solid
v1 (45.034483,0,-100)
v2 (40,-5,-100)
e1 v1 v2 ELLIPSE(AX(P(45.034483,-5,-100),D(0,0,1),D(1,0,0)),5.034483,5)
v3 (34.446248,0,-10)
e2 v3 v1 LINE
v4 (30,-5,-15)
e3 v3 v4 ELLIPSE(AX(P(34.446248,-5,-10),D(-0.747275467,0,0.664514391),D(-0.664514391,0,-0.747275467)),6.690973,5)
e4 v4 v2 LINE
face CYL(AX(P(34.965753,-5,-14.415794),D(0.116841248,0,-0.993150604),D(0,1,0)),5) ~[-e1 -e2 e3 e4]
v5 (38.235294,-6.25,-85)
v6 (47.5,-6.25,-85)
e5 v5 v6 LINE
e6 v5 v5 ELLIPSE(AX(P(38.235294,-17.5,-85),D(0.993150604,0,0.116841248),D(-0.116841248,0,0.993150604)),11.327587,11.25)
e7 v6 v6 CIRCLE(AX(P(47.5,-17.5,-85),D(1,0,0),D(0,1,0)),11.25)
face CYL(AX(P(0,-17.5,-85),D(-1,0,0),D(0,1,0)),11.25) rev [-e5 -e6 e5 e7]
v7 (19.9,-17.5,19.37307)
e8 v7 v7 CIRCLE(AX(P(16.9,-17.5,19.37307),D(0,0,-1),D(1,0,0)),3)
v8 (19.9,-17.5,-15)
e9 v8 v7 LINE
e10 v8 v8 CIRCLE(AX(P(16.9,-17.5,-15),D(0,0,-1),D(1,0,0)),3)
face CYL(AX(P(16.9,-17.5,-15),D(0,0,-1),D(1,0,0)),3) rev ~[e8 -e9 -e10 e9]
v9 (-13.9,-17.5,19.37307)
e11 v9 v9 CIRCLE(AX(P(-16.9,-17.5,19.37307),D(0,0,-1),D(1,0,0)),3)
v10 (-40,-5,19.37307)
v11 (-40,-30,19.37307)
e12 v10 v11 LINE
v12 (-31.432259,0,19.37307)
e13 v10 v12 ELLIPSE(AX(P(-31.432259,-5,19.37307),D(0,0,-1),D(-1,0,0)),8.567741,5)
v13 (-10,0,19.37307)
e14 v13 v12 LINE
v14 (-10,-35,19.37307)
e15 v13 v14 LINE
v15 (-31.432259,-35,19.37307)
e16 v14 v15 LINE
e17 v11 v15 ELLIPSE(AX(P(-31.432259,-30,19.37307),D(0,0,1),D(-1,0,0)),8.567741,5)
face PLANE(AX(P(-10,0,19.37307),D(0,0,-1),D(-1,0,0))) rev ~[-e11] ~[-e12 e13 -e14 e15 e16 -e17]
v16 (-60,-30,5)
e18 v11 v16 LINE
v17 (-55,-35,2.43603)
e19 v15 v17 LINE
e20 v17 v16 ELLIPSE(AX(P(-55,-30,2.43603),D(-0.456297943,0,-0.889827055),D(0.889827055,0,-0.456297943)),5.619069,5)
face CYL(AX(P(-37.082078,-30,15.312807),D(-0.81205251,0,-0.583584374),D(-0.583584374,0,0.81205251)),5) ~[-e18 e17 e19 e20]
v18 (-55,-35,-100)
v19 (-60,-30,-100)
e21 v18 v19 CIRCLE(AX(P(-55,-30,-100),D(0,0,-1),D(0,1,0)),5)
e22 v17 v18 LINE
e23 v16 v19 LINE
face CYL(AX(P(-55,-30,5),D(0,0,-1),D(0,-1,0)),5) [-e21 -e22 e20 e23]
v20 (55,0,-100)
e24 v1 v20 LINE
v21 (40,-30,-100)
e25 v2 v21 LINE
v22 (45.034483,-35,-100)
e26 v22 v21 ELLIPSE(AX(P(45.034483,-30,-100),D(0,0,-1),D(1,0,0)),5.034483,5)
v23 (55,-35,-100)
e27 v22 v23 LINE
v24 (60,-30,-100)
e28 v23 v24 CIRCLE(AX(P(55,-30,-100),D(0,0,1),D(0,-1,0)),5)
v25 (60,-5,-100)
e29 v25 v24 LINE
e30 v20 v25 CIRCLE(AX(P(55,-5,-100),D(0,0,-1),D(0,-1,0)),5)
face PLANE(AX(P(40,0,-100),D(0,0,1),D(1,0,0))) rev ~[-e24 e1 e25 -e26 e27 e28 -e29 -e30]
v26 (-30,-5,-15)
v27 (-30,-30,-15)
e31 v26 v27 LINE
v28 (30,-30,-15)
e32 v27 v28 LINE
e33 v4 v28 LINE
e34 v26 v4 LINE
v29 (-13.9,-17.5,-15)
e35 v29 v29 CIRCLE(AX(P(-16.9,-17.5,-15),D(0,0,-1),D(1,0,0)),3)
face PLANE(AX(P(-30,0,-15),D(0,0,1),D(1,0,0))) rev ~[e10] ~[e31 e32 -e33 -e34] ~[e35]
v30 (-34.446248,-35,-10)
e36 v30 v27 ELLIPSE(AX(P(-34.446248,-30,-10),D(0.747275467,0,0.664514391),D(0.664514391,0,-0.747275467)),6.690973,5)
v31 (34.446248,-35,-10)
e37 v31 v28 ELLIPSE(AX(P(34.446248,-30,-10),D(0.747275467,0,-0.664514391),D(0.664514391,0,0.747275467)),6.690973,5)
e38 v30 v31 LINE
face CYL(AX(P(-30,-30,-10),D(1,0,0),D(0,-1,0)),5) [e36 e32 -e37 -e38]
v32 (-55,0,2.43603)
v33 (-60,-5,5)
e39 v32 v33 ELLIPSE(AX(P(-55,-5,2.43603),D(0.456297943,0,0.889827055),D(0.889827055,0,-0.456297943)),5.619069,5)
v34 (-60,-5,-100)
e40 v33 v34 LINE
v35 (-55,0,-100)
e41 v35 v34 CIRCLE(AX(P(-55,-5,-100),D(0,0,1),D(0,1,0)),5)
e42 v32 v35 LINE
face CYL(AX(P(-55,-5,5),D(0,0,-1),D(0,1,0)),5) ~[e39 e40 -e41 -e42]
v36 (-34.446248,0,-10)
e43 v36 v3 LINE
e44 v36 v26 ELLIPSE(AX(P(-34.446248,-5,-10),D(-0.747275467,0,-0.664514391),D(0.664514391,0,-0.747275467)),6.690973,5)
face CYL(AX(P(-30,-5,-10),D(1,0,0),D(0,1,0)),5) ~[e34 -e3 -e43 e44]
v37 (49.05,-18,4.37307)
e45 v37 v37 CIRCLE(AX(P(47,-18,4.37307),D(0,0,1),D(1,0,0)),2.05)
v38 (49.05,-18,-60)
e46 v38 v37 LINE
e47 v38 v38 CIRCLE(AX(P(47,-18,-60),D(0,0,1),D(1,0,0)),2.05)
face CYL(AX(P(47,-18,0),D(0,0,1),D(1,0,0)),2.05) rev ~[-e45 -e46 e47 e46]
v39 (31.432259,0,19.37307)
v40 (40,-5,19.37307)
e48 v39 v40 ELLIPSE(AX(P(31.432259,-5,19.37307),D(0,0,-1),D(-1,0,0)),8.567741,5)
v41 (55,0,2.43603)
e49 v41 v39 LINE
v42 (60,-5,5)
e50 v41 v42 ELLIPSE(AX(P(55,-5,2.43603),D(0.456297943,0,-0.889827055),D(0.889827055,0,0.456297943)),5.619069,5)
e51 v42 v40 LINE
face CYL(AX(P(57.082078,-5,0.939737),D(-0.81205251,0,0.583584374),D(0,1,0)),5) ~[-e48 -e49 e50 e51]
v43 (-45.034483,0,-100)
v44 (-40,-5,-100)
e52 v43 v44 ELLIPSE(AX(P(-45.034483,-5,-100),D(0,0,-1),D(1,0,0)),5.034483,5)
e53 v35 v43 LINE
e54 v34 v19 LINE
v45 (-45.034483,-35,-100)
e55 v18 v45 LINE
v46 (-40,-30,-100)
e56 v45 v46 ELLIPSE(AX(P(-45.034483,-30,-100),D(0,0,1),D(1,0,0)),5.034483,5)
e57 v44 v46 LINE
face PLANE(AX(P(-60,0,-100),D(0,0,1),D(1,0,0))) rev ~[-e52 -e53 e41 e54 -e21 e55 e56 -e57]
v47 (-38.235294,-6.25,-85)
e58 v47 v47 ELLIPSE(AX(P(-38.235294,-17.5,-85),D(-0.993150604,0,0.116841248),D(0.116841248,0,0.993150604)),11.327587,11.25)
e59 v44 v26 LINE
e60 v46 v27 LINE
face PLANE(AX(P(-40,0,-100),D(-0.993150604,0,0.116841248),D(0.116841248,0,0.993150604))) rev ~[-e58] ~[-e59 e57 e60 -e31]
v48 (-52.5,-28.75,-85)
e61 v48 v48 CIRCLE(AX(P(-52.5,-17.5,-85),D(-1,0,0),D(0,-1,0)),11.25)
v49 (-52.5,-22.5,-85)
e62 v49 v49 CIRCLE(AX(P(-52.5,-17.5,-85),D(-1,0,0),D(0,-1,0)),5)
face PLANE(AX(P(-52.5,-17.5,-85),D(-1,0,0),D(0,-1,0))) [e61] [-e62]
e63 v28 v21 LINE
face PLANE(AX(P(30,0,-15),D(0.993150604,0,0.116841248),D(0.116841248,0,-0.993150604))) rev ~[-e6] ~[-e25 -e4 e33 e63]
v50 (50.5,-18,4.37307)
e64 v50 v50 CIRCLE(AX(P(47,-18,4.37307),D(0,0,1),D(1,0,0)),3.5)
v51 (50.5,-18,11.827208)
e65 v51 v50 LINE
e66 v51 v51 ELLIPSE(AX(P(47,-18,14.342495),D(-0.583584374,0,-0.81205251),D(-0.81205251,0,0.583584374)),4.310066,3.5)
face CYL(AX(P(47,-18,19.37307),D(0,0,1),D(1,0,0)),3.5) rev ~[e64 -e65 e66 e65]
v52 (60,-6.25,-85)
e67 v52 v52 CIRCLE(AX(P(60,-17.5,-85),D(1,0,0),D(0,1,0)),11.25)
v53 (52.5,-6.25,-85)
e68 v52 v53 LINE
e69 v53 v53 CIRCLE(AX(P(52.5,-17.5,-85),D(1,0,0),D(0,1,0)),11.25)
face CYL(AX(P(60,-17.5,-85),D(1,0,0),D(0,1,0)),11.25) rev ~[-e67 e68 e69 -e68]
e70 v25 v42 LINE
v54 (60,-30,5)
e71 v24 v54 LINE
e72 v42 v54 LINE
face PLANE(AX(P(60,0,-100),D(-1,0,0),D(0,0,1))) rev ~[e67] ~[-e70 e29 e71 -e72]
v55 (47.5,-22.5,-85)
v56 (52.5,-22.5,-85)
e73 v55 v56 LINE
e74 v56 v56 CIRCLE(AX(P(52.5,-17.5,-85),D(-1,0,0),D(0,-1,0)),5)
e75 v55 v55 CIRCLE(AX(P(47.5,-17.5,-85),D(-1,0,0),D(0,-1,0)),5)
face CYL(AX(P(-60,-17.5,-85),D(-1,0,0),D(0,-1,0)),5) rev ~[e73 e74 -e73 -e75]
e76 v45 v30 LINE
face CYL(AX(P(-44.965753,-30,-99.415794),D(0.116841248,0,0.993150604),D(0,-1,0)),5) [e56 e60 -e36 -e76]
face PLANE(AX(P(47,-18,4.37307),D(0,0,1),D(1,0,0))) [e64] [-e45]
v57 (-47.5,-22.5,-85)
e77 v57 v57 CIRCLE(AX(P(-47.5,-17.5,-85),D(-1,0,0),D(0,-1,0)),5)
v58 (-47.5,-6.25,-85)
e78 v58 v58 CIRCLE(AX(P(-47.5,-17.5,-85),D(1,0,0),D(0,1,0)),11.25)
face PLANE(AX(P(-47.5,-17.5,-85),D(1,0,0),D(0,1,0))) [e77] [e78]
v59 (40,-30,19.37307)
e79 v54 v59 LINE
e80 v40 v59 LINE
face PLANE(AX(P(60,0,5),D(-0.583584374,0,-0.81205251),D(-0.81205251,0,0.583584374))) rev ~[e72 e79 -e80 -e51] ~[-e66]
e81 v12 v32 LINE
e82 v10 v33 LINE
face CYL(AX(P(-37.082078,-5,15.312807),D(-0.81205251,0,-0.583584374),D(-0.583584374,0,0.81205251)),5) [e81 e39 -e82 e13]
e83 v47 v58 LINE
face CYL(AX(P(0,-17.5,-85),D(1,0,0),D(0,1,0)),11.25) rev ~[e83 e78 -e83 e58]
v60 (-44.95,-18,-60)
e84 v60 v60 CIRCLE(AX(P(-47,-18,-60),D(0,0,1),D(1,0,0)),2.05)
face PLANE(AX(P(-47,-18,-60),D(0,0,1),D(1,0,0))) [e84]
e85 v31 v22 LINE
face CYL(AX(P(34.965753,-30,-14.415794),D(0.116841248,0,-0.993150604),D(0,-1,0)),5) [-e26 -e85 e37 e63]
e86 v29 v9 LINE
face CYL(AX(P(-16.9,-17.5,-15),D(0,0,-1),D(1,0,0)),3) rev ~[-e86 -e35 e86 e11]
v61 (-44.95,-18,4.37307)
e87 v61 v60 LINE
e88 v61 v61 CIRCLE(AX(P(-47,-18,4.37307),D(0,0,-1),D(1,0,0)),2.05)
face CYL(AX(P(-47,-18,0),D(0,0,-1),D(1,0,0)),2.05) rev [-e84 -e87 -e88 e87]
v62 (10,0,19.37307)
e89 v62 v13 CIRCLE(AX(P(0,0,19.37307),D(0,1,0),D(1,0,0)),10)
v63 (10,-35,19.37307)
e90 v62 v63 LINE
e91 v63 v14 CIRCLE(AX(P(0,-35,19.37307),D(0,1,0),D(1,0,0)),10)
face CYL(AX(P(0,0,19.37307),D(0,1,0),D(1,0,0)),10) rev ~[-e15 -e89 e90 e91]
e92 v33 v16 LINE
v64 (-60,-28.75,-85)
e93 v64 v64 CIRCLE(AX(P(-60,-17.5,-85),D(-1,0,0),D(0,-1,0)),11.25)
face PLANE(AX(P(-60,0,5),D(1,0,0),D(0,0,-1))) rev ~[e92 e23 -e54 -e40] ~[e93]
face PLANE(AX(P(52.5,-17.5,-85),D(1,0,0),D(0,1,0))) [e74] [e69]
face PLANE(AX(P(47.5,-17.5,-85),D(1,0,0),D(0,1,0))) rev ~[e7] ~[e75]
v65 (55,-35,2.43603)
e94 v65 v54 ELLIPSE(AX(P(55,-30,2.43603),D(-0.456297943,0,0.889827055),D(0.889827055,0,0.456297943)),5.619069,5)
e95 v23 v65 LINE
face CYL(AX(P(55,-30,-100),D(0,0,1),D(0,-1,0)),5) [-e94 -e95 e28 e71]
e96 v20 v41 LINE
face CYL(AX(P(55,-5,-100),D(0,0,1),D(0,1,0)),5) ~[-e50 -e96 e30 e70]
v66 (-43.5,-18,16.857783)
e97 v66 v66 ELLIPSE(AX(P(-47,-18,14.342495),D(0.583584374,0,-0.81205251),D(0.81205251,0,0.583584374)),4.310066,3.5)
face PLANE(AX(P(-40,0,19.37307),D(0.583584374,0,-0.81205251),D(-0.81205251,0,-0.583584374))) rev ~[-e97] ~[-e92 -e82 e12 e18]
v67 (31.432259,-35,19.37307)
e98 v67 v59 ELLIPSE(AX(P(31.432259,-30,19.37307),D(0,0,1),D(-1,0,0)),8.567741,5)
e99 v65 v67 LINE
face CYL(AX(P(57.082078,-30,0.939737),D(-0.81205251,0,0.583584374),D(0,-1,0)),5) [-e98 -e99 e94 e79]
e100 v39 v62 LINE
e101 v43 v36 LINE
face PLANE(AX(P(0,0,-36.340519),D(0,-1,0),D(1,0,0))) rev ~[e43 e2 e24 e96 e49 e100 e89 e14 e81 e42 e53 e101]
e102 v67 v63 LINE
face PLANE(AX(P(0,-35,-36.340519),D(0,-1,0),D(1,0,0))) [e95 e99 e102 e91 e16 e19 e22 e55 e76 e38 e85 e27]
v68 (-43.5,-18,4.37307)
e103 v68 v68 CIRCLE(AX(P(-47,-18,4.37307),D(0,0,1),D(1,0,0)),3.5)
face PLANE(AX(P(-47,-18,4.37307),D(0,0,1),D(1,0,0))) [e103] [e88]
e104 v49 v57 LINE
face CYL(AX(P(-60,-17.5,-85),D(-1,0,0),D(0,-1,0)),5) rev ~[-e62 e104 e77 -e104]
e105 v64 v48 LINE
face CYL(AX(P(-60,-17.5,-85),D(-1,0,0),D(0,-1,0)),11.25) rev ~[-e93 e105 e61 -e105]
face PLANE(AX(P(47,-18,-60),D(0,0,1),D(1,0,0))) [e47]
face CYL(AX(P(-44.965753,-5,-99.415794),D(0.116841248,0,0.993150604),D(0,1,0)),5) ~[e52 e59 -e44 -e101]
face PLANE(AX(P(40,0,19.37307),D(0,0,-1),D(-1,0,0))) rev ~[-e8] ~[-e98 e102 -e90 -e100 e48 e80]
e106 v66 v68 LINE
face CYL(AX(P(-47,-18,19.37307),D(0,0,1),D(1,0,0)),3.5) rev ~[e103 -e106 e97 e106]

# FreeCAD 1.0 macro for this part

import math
import FreeCAD as App
import Part
import Sketcher

V = App.Vector
Q = App.Units.Quantity


def edges_at(feature, points):
    """Names of the edges that pass closest to the given points."""
    edges = feature.Shape.Edges
    near = lambda p: min(range(len(edges)), key=lambda i: edges[i].distToShape(Part.Vertex(*p))[0])
    return sorted({f"Edge{near(p) + 1}" for p in points})

doc = App.newDocument("Part")
body = doc.addObject("PartDesign::Body", "Body")

# Sketch on XZ plane
sketch1 = doc.addObject("Sketcher::SketchObject", "Sketch")
body.addObject(sketch1)
sketch1.AttachmentSupport = (doc.XZ_Plane, [""])
sketch1.MapMode = "FlatFace"
sketch1.addGeometry([
    Part.LineSegment(V(-40, 19, 0), V(-60, 5, 0)),  # 0
    Part.LineSegment(V(-60, 5, 0), V(-60, -100, 0)),  # 1
    Part.LineSegment(V(-60, -100, 0), V(-40, -100, 0)),  # 2
    Part.LineSegment(V(-40, -100, 0), V(-30, -15, 0)),  # 3
    Part.LineSegment(V(-30, -15, 0), V(30, -15, 0)),  # 4
    Part.LineSegment(V(30, -15, 0), V(40, -100, 0)),  # 5
    Part.LineSegment(V(40, -100, 0), V(60, -100, 0)),  # 6
    Part.LineSegment(V(60, -100, 0), V(60, 5, 0)),  # 7
    Part.LineSegment(V(60, 5, 0), V(40, 19, 0)),  # 8
    Part.LineSegment(V(40, 19, 0), V(10, 19, 0)),  # 9
    Part.ArcOfCircle(Part.Circle(V(0, 19, 0), V(0, 0, 1), 10), math.radians(180), math.radians(360)),  # 10
    Part.LineSegment(V(-10, 19, 0), V(-40, 19, 0)),  # 11
], False)
sketch1.addConstraint([
    Sketcher.Constraint("Coincident", 0, 2, 1, 1),
    Sketcher.Constraint("Coincident", 1, 2, 2, 1),
    Sketcher.Constraint("Coincident", 2, 2, 3, 1),
    Sketcher.Constraint("Coincident", 3, 2, 4, 1),
    Sketcher.Constraint("Coincident", 4, 2, 5, 1),
    Sketcher.Constraint("Coincident", 5, 2, 6, 1),
    Sketcher.Constraint("Coincident", 6, 2, 7, 1),
    Sketcher.Constraint("Coincident", 7, 2, 8, 1),
    Sketcher.Constraint("Coincident", 8, 2, 9, 1),
    Sketcher.Constraint("Coincident", 9, 2, 10, 2),
    Sketcher.Constraint("Coincident", 10, 1, 11, 1),
    Sketcher.Constraint("Coincident", 11, 2, 0, 1),
    Sketcher.Constraint("Vertical", 1),
    Sketcher.Constraint("Horizontal", 2),
    Sketcher.Constraint("Horizontal", 4),
    Sketcher.Constraint("Horizontal", 6),
    Sketcher.Constraint("Vertical", 7),
    Sketcher.Constraint("Horizontal", 9),
    Sketcher.Constraint("Horizontal", 11),
    Sketcher.Constraint("Symmetric", 2, 2, 5, 2, -2),
    Sketcher.Constraint("Symmetric", 0, 2, 7, 2, -2),
    Sketcher.Constraint("Symmetric", 9, 2, 10, 1, -2),
    Sketcher.Constraint("Horizontal", 10, 3, 8, 2),
    Sketcher.Constraint("Vertical", 5, 2, 8, 2),
    Sketcher.Constraint("Vertical", 2, 2, 11, 2),
    Sketcher.Constraint("Equal", 3, 5),
    Sketcher.Constraint("Radius", 10, Q("10 mm")),
    Sketcher.Constraint("DistanceX", 2, 1, 2, 2, Q("20 mm")),
    Sketcher.Constraint("DistanceX", 4, 1, 4, 2, Q("60 mm")),
    Sketcher.Constraint("DistanceX", 9, 2, 9, 1, Q("30 mm")),
    Sketcher.Constraint("DistanceY", 1, 2, 1, 1, Q("105 mm")),
    Sketcher.Constraint("DistanceY", -1, 1, 0, 2, Q("5 mm")),
    Sketcher.Constraint("DistanceY", 3, 2, -1, 1, Q("15 mm")),
    Sketcher.Constraint("Distance", 0, Q("24.628949 mm")),
])
pad1 = doc.addObject("PartDesign::Pad", "Pad")
body.addObject(pad1)
pad1.Profile = sketch1
pad1.Length = 35

# Sketch on XY plane
sketch2 = doc.addObject("Sketcher::SketchObject", "Sketch001")
body.addObject(sketch2)
sketch2.AttachmentSupport = (doc.XY_Plane, [""])
sketch2.MapMode = "FlatFace"
sketch2.AttachmentOffset = App.Placement(V(0, 0, -15), App.Rotation())
sketch2.addGeometry([
    Part.Circle(V(-16.9, -17.5, 0), V(0, 0, 1), 3),
    Part.Circle(V(16.9, -17.5, 0), V(0, 0, 1), 3),
], False)
sketch2.addConstraint([
    Sketcher.Constraint("Equal", 0, 1),
    Sketcher.Constraint("Symmetric", 0, 3, 1, 3, -2),
    Sketcher.Constraint("Diameter", 0, Q("6 mm")),
    Sketcher.Constraint("DistanceX", 0, 3, -1, 1, Q("16.9 mm")),
    Sketcher.Constraint("DistanceY", 0, 3, -1, 1, Q("17.5 mm")),
])
pocket1 = doc.addObject("PartDesign::Pocket", "Pocket")
body.addObject(pocket1)
pocket1.Profile = sketch2
pocket1.Type = "ThroughAll"
pocket1.Reversed = True

# Sketch on YZ plane
sketch3 = doc.addObject("Sketcher::SketchObject", "Sketch002")
body.addObject(sketch3)
sketch3.AttachmentSupport = (doc.YZ_Plane, [""])
sketch3.MapMode = "FlatFace"
sketch3.AttachmentOffset = App.Placement(V(0, 0, -60), App.Rotation())
sketch3.addGeometry(Part.Circle(V(-18, -85, 0), V(0, 0, 1), 5), False)
sketch3.addConstraint([
    Sketcher.Constraint("Diameter", 0, Q("10 mm")),
    Sketcher.Constraint("DistanceY", 0, 3, -1, 1, Q("85 mm")),
    Sketcher.Constraint("DistanceX", 0, 3, -1, 1, Q("17.5 mm")),
])
pocket2 = doc.addObject("PartDesign::Pocket", "Pocket001")
body.addObject(pocket2)
pocket2.Profile = sketch3
pocket2.Type = "ThroughAll"
pocket2.Reversed = True

# Sketch on YZ plane
sketch4 = doc.addObject("Sketcher::SketchObject", "Sketch003")
body.addObject(sketch4)
sketch4.AttachmentSupport = (doc.YZ_Plane, [""])
sketch4.MapMode = "FlatFace"
sketch4.AttachmentOffset = App.Placement(V(0, 0, -60), App.Rotation())
sketch4.addGeometry(Part.Circle(V(-18, -85, 0), V(0, 0, 1), 11), False)
sketch4.addConstraint([
    Sketcher.Constraint("Diameter", 0, Q("22.5 mm")),
    Sketcher.Constraint("DistanceY", 0, 3, -1, 1, Q("85 mm")),
    Sketcher.Constraint("DistanceX", 0, 3, -1, 1, Q("17.5 mm")),
])
pocket3 = doc.addObject("PartDesign::Pocket", "Pocket002")
body.addObject(pocket3)
pocket3.Profile = sketch4
pocket3.Length = 7.5
pocket3.Reversed = True

# Sketch on YZ plane
sketch5 = doc.addObject("Sketcher::SketchObject", "Sketch004")
body.addObject(sketch5)
sketch5.AttachmentSupport = (doc.YZ_Plane, [""])
sketch5.MapMode = "FlatFace"
sketch5.AttachmentOffset = App.Placement(V(0, 0, 60), App.Rotation())
sketch5.addGeometry(Part.Circle(V(-18, -85, 0), V(0, 0, 1), 11), False)
sketch5.addConstraint([
    Sketcher.Constraint("Diameter", 0, Q("22.5 mm")),
    Sketcher.Constraint("DistanceY", 0, 3, -1, 1, Q("85 mm")),
    Sketcher.Constraint("DistanceX", 0, 3, -1, 1, Q("17.5 mm")),
])
pocket4 = doc.addObject("PartDesign::Pocket", "Pocket003")
body.addObject(pocket4)
pocket4.Profile = sketch5
pocket4.Length = 7.5

# Sketch on YZ plane
sketch6 = doc.addObject("Sketcher::SketchObject", "Sketch005")
body.addObject(sketch6)
sketch6.AttachmentSupport = (doc.YZ_Plane, [""])
sketch6.MapMode = "FlatFace"
sketch6.addGeometry(Part.Circle(V(-18, -85, 0), V(0, 0, 1), 11), False)
sketch6.addConstraint([
    Sketcher.Constraint("Diameter", 0, Q("22.5 mm")),
    Sketcher.Constraint("DistanceY", 0, 3, -1, 1, Q("85 mm")),
    Sketcher.Constraint("DistanceX", 0, 3, -1, 1, Q("17.5 mm")),
])
pocket5 = doc.addObject("PartDesign::Pocket", "Pocket004")
body.addObject(pocket5)
pocket5.Profile = sketch6
pocket5.Length = 47.5

# Sketch on YZ plane
sketch7 = doc.addObject("Sketcher::SketchObject", "Sketch006")
body.addObject(sketch7)
sketch7.AttachmentSupport = (doc.YZ_Plane, [""])
sketch7.MapMode = "FlatFace"
sketch7.addGeometry(Part.Circle(V(-18, -85, 0), V(0, 0, 1), 11), False)
sketch7.addConstraint([
    Sketcher.Constraint("Diameter", 0, Q("22.5 mm")),
    Sketcher.Constraint("DistanceY", 0, 3, -1, 1, Q("85 mm")),
    Sketcher.Constraint("DistanceX", 0, 3, -1, 1, Q("17.5 mm")),
])
pocket6 = doc.addObject("PartDesign::Pocket", "Pocket005")
body.addObject(pocket6)
pocket6.Profile = sketch7
pocket6.Length = 47.5
pocket6.Reversed = True

# Sketch on XY plane
sketch8 = doc.addObject("Sketcher::SketchObject", "Sketch007")
body.addObject(sketch8)
sketch8.AttachmentSupport = (doc.XY_Plane, [""])
sketch8.MapMode = "FlatFace"
sketch8.addGeometry([
    Part.Circle(V(-47, -18, 0), V(0, 0, 1), 2),
    Part.Circle(V(47, -18, 0), V(0, 0, 1), 2),
], False)
sketch8.addConstraint([
    Sketcher.Constraint("Equal", 0, 1),
    Sketcher.Constraint("Symmetric", 0, 3, 1, 3, -2),
    Sketcher.Constraint("Diameter", 0, Q("4.1 mm")),
    Sketcher.Constraint("DistanceX", 0, 3, -1, 1, Q("47 mm")),
    Sketcher.Constraint("DistanceY", 0, 3, -1, 1, Q("18 mm")),
])
pocket7 = doc.addObject("PartDesign::Pocket", "Pocket006")
body.addObject(pocket7)
pocket7.Profile = sketch8
pocket7.Length = 120
pocket7.Midplane = True

# Sketch on XY plane
sketch9 = doc.addObject("Sketcher::SketchObject", "Sketch008")
body.addObject(sketch9)
sketch9.AttachmentSupport = (doc.XY_Plane, [""])
sketch9.MapMode = "FlatFace"
sketch9.AttachmentOffset = App.Placement(V(0, 0, 19.37307), App.Rotation())
sketch9.addGeometry([
    Part.Circle(V(-47, -18, 0), V(0, 0, 1), 3.5),
    Part.Circle(V(47, -18, 0), V(0, 0, 1), 3.5),
], False)
sketch9.addConstraint([
    Sketcher.Constraint("Equal", 0, 1),
    Sketcher.Constraint("Symmetric", 0, 3, 1, 3, -2),
    Sketcher.Constraint("Diameter", 0, Q("7 mm")),
    Sketcher.Constraint("DistanceX", 0, 3, -1, 1, Q("47 mm")),
    Sketcher.Constraint("DistanceY", 0, 3, -1, 1, Q("18 mm")),
])
pocket8 = doc.addObject("PartDesign::Pocket", "Pocket007")
body.addObject(pocket8)
pocket8.Profile = sketch9
pocket8.Length = 15
doc.recompute()

fillet = doc.addObject("PartDesign::Fillet", "Fillet")
body.addObject(fillet)
fillet.Base = (pocket8, edges_at(pocket8, [
    (60, -35, -47.5),
    (60, 0, -47.5),
    (-60, -35, -47.5),
    (-60, 0, -47.5),
    (-50, 0, 12.187),
    (-50, -35, 12.187),
    (50, -35, 12.187),
    (50, 0, 12.187),
    (35, 0, -57.5),
    (0, 0, -15),
    (0, -35, -15),
    (-35, -35, -57.5),
    (35, -35, -57.5),
    (-35, 0, -57.5),
]))
fillet.Radius = 5

doc.recompute()
